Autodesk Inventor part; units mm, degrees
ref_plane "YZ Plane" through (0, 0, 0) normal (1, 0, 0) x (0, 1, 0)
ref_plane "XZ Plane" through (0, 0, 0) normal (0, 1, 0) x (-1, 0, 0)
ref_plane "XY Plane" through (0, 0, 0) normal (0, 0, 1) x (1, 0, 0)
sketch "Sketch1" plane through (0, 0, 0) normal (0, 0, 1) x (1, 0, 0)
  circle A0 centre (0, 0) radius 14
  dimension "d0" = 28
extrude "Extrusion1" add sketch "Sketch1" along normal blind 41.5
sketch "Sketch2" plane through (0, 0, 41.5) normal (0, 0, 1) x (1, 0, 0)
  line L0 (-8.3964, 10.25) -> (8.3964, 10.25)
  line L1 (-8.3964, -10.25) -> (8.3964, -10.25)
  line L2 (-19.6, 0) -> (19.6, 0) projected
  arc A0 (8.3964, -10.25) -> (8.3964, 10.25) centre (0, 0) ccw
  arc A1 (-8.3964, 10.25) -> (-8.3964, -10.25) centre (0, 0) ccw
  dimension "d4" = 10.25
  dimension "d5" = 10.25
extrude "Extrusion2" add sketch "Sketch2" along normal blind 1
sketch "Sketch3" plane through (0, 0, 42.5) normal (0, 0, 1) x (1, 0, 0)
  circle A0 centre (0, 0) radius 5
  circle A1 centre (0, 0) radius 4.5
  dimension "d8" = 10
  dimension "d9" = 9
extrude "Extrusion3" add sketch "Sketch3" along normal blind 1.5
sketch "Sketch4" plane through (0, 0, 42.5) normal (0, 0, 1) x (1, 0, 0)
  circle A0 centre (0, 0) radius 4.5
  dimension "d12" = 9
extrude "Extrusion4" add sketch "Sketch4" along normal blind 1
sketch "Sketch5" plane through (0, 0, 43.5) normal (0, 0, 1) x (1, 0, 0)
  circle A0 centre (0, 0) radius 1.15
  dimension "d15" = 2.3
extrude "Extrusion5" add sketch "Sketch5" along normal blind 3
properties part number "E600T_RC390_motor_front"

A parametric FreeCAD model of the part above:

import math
import FreeCAD as App
import Part
import Sketcher

V = App.Vector
Q = App.Units.Quantity

doc = App.newDocument("Part")
body = doc.addObject("PartDesign::Body", "Body")

# Sketch on XY plane
sketch1 = body.newObject("Sketcher::SketchObject", "Sketch")
sketch1.AttachmentSupport = (doc.getObject("XY_Plane"), [""])
sketch1.MapMode = "FlatFace"
sketch1.addGeometry(Part.Circle(V(0, 0, 0), V(0, 0, 1), 14), False)
sketch1.addConstraint([
    Sketcher.Constraint("Coincident", 0, 3, -1, 1),
    Sketcher.Constraint("Diameter", 0, Q("28 mm")),
])
pad1 = body.newObject("PartDesign::Pad", "Pad")
pad1.Profile = sketch1
pad1.Length = 41.5

# Sketch on XY plane
sketch2 = body.newObject("Sketcher::SketchObject", "Sketch001")
sketch2.AttachmentSupport = (doc.getObject("XY_Plane"), [""])
sketch2.MapMode = "FlatFace"
sketch2.AttachmentOffset = App.Placement(V(0, 0, 41.5), App.Rotation())
sketch2.addGeometry([
    Part.LineSegment(V(8, 10, 0), V(-8, 10, 0)),
    Part.ArcOfCircle(Part.Circle(V(0, 0, 0), V(0, 0, 1), 13), math.radians(129), math.radians(231)),
    Part.LineSegment(V(-8, -10, 0), V(8, -10, 0)),
    Part.ArcOfCircle(Part.Circle(V(0, 0, 0), V(0, 0, 1), 13), math.radians(-51), math.radians(51)),
], False)
sketch2.addConstraint([
    Sketcher.Constraint("Coincident", 0, 2, 1, 1),
    Sketcher.Constraint("Coincident", 1, 2, 2, 1),
    Sketcher.Constraint("Coincident", 2, 2, 3, 1),
    Sketcher.Constraint("Coincident", 3, 2, 0, 1),
    Sketcher.Constraint("Horizontal", 0),
    Sketcher.Constraint("Horizontal", 2),
    Sketcher.Constraint("Coincident", 1, 3, -1, 1),
    Sketcher.Constraint("Coincident", 3, 3, -1, 1),
    Sketcher.Constraint("Equal", 1, 3),
    Sketcher.Constraint("Vertical", 0, 2, 1, 2),
    Sketcher.Constraint("DistanceY", -1, 1, 0, 2, Q("10.25 mm")),
    Sketcher.Constraint("Radius", 1, Q("13.25 mm")),
])
pad2 = body.newObject("PartDesign::Pad", "Pad001")
pad2.Profile = sketch2
pad2.Length = 1

# Sketch on XY plane
sketch3 = body.newObject("Sketcher::SketchObject", "Sketch002")
sketch3.AttachmentSupport = (doc.getObject("XY_Plane"), [""])
sketch3.MapMode = "FlatFace"
sketch3.AttachmentOffset = App.Placement(V(0, 0, 42.5), App.Rotation())
sketch3.addGeometry([
    Part.Circle(V(0, 0, 0), V(0, 0, 1), 5),
    Part.Circle(V(0, 0, 0), V(0, 0, 1), 4.5),
], False)
sketch3.addConstraint([
    Sketcher.Constraint("Coincident", 0, 3, -1, 1),
    Sketcher.Constraint("Coincident", 1, 3, -1, 1),
    Sketcher.Constraint("Diameter", 0, Q("10 mm")),
    Sketcher.Constraint("Diameter", 1, Q("9 mm")),
])
pad3 = body.newObject("PartDesign::Pad", "Pad002")
pad3.Profile = sketch3
pad3.Length = 1.5

# Sketch on XY plane
sketch4 = body.newObject("Sketcher::SketchObject", "Sketch003")
sketch4.AttachmentSupport = (doc.getObject("XY_Plane"), [""])
sketch4.MapMode = "FlatFace"
sketch4.AttachmentOffset = App.Placement(V(0, 0, 42.5), App.Rotation())
sketch4.addGeometry(Part.Circle(V(0, 0, 0), V(0, 0, 1), 4.5), False)
sketch4.addConstraint([
    Sketcher.Constraint("Coincident", 0, 3, -1, 1),
    Sketcher.Constraint("Diameter", 0, Q("9 mm")),
])
pad4 = body.newObject("PartDesign::Pad", "Pad003")
pad4.Profile = sketch4
pad4.Length = 1

# Sketch on XY plane
sketch5 = body.newObject("Sketcher::SketchObject", "Sketch004")
sketch5.AttachmentSupport = (doc.getObject("XY_Plane"), [""])
sketch5.MapMode = "FlatFace"
sketch5.AttachmentOffset = App.Placement(V(0, 0, 43.5), App.Rotation())
sketch5.addGeometry(Part.Circle(V(0, 0, 0), V(0, 0, 1), 1.1), False)
sketch5.addConstraint([
    Sketcher.Constraint("Coincident", 0, 3, -1, 1),
    Sketcher.Constraint("Diameter", 0, Q("2.3 mm")),
])
pad5 = body.newObject("PartDesign::Pad", "Pad004")
pad5.Profile = sketch5
pad5.Length = 3

doc.recompute()
